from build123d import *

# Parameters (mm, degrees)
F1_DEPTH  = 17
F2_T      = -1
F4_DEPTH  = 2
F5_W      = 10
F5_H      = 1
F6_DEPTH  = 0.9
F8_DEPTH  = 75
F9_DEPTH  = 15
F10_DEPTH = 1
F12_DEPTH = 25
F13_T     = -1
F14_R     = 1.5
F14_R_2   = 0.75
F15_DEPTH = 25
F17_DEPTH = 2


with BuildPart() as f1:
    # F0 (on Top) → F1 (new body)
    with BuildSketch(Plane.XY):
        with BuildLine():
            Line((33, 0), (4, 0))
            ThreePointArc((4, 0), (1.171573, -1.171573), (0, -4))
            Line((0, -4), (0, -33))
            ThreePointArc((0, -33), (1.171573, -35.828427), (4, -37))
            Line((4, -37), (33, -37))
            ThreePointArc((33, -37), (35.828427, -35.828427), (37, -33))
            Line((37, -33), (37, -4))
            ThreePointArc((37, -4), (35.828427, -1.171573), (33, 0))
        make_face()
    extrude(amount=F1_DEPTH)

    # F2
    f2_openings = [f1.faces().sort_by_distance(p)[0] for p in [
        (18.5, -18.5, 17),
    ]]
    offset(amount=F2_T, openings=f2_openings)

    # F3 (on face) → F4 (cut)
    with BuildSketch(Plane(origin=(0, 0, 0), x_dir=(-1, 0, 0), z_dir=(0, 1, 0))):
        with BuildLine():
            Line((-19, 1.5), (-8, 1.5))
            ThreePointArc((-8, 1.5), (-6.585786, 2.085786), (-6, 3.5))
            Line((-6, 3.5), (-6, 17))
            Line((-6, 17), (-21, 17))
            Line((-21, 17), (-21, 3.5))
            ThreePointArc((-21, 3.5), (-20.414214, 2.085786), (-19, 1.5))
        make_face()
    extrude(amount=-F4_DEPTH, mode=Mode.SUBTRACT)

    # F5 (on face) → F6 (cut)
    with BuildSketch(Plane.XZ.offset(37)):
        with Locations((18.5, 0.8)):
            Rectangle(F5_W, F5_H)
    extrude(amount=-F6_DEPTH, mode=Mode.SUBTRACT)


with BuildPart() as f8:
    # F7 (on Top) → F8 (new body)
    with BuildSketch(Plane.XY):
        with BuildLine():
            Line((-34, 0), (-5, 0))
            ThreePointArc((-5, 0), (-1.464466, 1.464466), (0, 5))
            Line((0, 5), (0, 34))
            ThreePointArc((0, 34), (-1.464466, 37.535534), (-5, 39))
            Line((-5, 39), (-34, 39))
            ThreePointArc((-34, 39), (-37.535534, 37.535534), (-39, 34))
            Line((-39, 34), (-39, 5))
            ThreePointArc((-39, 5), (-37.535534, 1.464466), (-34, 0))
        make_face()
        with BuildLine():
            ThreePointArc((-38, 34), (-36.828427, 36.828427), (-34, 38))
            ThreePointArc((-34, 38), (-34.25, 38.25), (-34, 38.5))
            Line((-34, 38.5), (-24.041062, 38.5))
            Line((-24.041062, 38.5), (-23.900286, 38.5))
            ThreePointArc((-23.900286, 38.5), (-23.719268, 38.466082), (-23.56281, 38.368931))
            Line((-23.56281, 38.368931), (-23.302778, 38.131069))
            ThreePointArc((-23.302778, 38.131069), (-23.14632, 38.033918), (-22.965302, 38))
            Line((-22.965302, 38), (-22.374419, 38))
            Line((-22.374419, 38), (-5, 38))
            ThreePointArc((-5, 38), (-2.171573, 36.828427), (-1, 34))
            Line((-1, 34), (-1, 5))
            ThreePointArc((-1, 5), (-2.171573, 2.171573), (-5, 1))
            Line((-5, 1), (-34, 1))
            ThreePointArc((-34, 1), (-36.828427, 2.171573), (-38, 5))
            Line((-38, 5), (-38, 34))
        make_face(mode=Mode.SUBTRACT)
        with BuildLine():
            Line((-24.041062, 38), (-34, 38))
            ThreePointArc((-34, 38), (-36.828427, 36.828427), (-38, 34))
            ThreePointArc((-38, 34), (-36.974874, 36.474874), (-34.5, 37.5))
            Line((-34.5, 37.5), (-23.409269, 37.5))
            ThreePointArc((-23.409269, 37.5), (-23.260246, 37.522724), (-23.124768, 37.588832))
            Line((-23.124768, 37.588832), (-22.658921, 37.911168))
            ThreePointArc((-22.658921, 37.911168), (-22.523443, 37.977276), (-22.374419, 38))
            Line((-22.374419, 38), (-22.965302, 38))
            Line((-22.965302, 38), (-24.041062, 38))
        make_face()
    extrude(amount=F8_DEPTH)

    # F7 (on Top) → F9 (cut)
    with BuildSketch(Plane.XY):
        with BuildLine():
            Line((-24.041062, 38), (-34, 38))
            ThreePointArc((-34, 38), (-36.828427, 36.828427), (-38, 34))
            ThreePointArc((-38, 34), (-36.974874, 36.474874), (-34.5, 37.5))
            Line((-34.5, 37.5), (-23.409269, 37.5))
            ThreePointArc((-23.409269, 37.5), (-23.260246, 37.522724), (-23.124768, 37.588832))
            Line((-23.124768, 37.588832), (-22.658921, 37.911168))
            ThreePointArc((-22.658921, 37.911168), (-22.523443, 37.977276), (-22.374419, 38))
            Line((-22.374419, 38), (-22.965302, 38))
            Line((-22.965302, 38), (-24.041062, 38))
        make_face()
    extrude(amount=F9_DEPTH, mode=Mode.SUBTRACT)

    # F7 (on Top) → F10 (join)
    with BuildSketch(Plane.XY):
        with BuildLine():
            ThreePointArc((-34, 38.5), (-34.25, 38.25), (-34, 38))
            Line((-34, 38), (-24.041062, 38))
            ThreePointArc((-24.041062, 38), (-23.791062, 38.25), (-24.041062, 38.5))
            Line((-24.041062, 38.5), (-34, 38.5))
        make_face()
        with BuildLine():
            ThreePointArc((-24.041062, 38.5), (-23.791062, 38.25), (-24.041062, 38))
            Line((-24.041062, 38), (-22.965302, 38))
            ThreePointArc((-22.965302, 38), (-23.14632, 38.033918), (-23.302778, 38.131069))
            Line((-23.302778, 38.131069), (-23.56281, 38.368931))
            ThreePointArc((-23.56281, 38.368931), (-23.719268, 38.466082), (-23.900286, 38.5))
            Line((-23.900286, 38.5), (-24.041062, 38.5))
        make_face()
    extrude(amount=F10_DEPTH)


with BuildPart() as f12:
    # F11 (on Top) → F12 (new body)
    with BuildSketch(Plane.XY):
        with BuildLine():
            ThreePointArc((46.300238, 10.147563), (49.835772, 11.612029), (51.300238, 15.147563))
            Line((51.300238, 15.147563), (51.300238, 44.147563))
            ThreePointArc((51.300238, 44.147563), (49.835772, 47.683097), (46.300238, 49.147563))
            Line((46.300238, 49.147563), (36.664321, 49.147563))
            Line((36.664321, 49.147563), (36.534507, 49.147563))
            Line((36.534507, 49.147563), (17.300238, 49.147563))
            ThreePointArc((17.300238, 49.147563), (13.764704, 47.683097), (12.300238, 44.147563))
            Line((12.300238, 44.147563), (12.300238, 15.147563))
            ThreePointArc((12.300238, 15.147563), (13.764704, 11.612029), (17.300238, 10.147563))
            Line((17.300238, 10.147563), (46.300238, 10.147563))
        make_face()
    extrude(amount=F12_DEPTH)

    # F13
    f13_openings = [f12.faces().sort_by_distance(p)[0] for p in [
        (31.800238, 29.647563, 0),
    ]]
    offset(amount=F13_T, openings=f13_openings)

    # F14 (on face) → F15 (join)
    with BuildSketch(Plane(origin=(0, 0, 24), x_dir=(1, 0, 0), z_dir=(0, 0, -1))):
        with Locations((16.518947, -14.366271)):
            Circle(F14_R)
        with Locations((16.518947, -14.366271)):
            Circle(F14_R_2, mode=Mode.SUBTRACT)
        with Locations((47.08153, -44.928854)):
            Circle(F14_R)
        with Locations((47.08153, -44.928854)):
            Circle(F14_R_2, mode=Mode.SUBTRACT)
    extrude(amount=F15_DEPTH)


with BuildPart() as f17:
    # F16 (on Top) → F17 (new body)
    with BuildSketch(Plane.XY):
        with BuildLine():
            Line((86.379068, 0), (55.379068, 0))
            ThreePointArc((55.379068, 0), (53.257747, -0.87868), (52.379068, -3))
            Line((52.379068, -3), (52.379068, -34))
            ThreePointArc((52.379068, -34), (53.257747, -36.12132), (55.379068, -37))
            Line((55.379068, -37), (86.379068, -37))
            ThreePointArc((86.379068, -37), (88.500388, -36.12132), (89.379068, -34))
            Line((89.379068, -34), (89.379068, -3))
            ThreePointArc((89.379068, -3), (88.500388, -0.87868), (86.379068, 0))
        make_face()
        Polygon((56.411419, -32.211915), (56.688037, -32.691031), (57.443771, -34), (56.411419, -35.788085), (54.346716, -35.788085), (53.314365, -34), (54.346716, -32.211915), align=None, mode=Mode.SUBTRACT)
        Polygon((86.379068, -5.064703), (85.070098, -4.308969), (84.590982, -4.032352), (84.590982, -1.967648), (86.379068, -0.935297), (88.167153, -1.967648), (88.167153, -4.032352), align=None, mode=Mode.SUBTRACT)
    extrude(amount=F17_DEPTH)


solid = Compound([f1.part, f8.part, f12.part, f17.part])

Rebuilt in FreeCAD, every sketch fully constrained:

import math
import FreeCAD as App
import Part
import Sketcher
from FreeCAD import Vector
Q = App.Units.Quantity


def faces_at(feature, points):
    """Names of the faces that lie closest to the given points."""
    faces = feature.Shape.Faces
    near = lambda p: min(range(len(faces)), key=lambda i: faces[i].distToShape(Part.Vertex(*p))[0])
    return sorted({f"Face{near(p) + 1}" for p in points})

doc = App.newDocument("Part")
body = doc.addObject("PartDesign::Body", "Body")

sketch1 = doc.addObject("Sketcher::SketchObject", "Sketch")
body.addObject(sketch1)
sketch1.AttachmentSupport = (doc.XY_Plane, [""])
sketch1.MapMode = "FlatFace"
sketch1.addGeometry([
    Part.LineSegment(Vector(33, 0, 0), Vector(4, 0, 0)),
    Part.ArcOfCircle(Part.Circle(Vector(4, -4, 0), Vector(0, 0, 1), 4), math.radians(90.000006), math.radians(179.999994)),
    Part.LineSegment(Vector(0, -4, 0), Vector(0, -33, 0)),
    Part.ArcOfCircle(Part.Circle(Vector(4, -33, 0), Vector(0, 0, 1), 4), math.radians(-179.999994), math.radians(-90.000006)),
    Part.LineSegment(Vector(4, -37, 0), Vector(33, -37, 0)),
    Part.ArcOfCircle(Part.Circle(Vector(33, -33, 0), Vector(0, 0, 1), 4), math.radians(-89.999994), math.radians(-0.000006)),
    Part.LineSegment(Vector(37, -33, 0), Vector(37, -4, 0)),
    Part.ArcOfCircle(Part.Circle(Vector(33, -4, 0), Vector(0, 0, 1), 4), math.radians(0.000006), math.radians(89.999994)),
], False)
sketch1.addConstraint([
    Sketcher.Constraint("Tangent", 0, 2, 1, 1),
    Sketcher.Constraint("Tangent", 1, 2, 2, 1),
    Sketcher.Constraint("Tangent", 2, 2, 3, 1),
    Sketcher.Constraint("Tangent", 3, 2, 4, 1),
    Sketcher.Constraint("Tangent", 4, 2, 5, 1),
    Sketcher.Constraint("Tangent", 5, 2, 6, 1),
    Sketcher.Constraint("Tangent", 6, 2, 7, 1),
    Sketcher.Constraint("Tangent", 7, 2, 0, 1),
    Sketcher.Constraint("Horizontal", 0),
    Sketcher.Constraint("Vertical", 2),
    Sketcher.Constraint("Horizontal", 4),
    Sketcher.Constraint("Vertical", 6),
    Sketcher.Constraint("Equal", 1, 3),
    Sketcher.Constraint("Equal", 3, 5),
    Sketcher.Constraint("Equal", 5, 7),
    Sketcher.Constraint("PointOnObject", 0, 2, -1),
    Sketcher.Constraint("PointOnObject", 1, 2, -2),
    Sketcher.Constraint("Equal", 4, 2),
    Sketcher.Constraint("Radius", 1, 4.0),
    Sketcher.Constraint("DistanceX", 0, 2, 0, 1, 29.0),
])
pad1 = doc.addObject("PartDesign::Pad", "Pad")
body.addObject(pad1)
pad1.Profile = sketch1
pad1.Length = 17
doc.recompute()

thickness = doc.addObject("PartDesign::Thickness", "Thickness")
body.addObject(thickness)
thickness.Base = (pad1, faces_at(pad1, [(18.5, -18.5, 17)]))
thickness.Value = 1
thickness.Reversed = True
thickness.Join = "Arc"

sketch2 = doc.addObject("Sketcher::SketchObject", "Sketch001")
body.addObject(sketch2)
sketch2.AttachmentSupport = (doc.XZ_Plane, [""])
sketch2.MapMode = "FlatFace"
sketch2.addGeometry([
    Part.LineSegment(Vector(19, 1.5, 0), Vector(8, 1.5, 0)),
    Part.ArcOfCircle(Part.Circle(Vector(7.999999, 3.499999, 0), Vector(0, 0, 1), 1.999999), math.radians(179.999957), math.radians(270.000043)),
    Part.LineSegment(Vector(6, 3.5, 0), Vector(6, 17, 0)),
    Part.LineSegment(Vector(6, 17, 0), Vector(21, 17, 0)),
    Part.LineSegment(Vector(21, 17, 0), Vector(21, 3.5, 0)),
    Part.ArcOfCircle(Part.Circle(Vector(19.000001, 3.499999, 0), Vector(0, 0, 1), 1.999999), math.radians(-90.000043), math.radians(0.000043)),
], False)
sketch2.addConstraint([
    Sketcher.Constraint("Tangent", 0, 2, 1, 2),
    Sketcher.Constraint("Tangent", 1, 1, 2, 1),
    Sketcher.Constraint("Coincident", 2, 2, 3, 1),
    Sketcher.Constraint("Coincident", 3, 2, 4, 1),
    Sketcher.Constraint("Tangent", 4, 2, 5, 2),
    Sketcher.Constraint("Tangent", 5, 1, 0, 1),
    Sketcher.Constraint("Horizontal", 0),
    Sketcher.Constraint("Vertical", 2),
    Sketcher.Constraint("Horizontal", 3),
    Sketcher.Constraint("Vertical", 4),
    Sketcher.Constraint("Equal", 1, 5),
    Sketcher.Constraint("Radius", 1, 1.999999),
    Sketcher.Constraint("DistanceX", 0, 2, 0, 1, 11.0),
    Sketcher.Constraint("DistanceY", 2, 1, 2, 2, 13.5),
    Sketcher.Constraint("DistanceX", -1, 1, 1, 3, 7.999999),
    Sketcher.Constraint("DistanceY", -1, 1, 2, 2, 17.0),
])
pocket1 = doc.addObject("PartDesign::Pocket", "Pocket")
body.addObject(pocket1)
pocket1.Profile = sketch2
pocket1.Length = 2
pocket1.Reversed = True

sketch3 = doc.addObject("Sketcher::SketchObject", "Sketch002")
body.addObject(sketch3)
sketch3.AttachmentSupport = (doc.XZ_Plane, [""])
sketch3.MapMode = "FlatFace"
sketch3.AttachmentOffset = App.Placement(Vector(0, 0, 37), App.Rotation())
sketch3.addGeometry([
    Part.LineSegment(Vector(13.5, 1.3, 0), Vector(13.5, 0.3, 0)),
    Part.LineSegment(Vector(13.5, 0.3, 0), Vector(23.5, 0.3, 0)),
    Part.LineSegment(Vector(23.5, 0.3, 0), Vector(23.5, 1.3, 0)),
    Part.LineSegment(Vector(23.5, 1.3, 0), Vector(13.5, 1.3, 0)),
], False)
sketch3.addConstraint([
    Sketcher.Constraint("Coincident", 0, 2, 1, 1),
    Sketcher.Constraint("Coincident", 1, 2, 2, 1),
    Sketcher.Constraint("Coincident", 2, 2, 3, 1),
    Sketcher.Constraint("Coincident", 3, 2, 0, 1),
    Sketcher.Constraint("Vertical", 0),
    Sketcher.Constraint("Horizontal", 1),
    Sketcher.Constraint("Vertical", 2),
    Sketcher.Constraint("Horizontal", 3),
    Sketcher.Constraint("DistanceX", 1, 1, 1, 2, 10.0),
    Sketcher.Constraint("DistanceY", 0, 2, 0, 1, 1.0),
    Sketcher.Constraint("DistanceX", -1, 1, 0, 2, 13.5),
    Sketcher.Constraint("DistanceY", -1, 1, 0, 2, 0.3),
])
pocket2 = doc.addObject("PartDesign::Pocket", "Pocket001")
body.addObject(pocket2)
pocket2.Profile = sketch3
pocket2.Length = 0.9
body2 = doc.addObject("PartDesign::Body", "Body001")

sketch4 = doc.addObject("Sketcher::SketchObject", "Sketch003")
body2.addObject(sketch4)
sketch4.AttachmentSupport = (doc.getObject("XY_Plane001"), [""])
sketch4.MapMode = "FlatFace"
sketch4.addGeometry([
    Part.LineSegment(Vector(-34, 0, 0), Vector(-5, 0, 0)),
    Part.ArcOfCircle(Part.Circle(Vector(-5, 5, 0), Vector(0, 0, 1), 5), math.radians(-90.000004), math.radians(0.000004)),
    Part.LineSegment(Vector(0, 5, 0), Vector(0, 34, 0)),
    Part.ArcOfCircle(Part.Circle(Vector(-5, 34, 0), Vector(0, 0, 1), 5), math.radians(-0.000004), math.radians(90.000004)),
    Part.LineSegment(Vector(-5, 39, 0), Vector(-34, 39, 0)),
    Part.ArcOfCircle(Part.Circle(Vector(-34, 34, 0), Vector(0, 0, 1), 5), math.radians(89.999996), math.radians(180.000004)),
    Part.LineSegment(Vector(-39, 34, 0), Vector(-39, 5, 0)),
    Part.ArcOfCircle(Part.Circle(Vector(-34, 5, 0), Vector(0, 0, 1), 5), math.radians(179.999996), math.radians(270.000004)),
    Part.LineSegment(Vector(-38, 5, 0), Vector(-38, 34, 0)),
    Part.ArcOfCircle(Part.Circle(Vector(-34.500001, 34.000001, 0), Vector(0, 0, 1), 3.499999), math.radians(89.999985), math.radians(180.000015)),
    Part.LineSegment(Vector(-34.5, 37.5, 0), Vector(-23.409269, 37.5, 0)),
    Part.ArcOfCircle(Part.Circle(Vector(-23.409267, 37.999994, 0), Vector(0, 0, 1), 0.499994), math.radians(-90.000187), math.radians(-55.319126)),
    Part.LineSegment(Vector(-23.124768, 37.588832, 0), Vector(-22.658921, 37.911168, 0)),
    Part.ArcOfCircle(Part.Circle(Vector(-22.374422, 37.500006, 0), Vector(0, 0, 1), 0.499994), math.radians(89.999698), math.radians(124.680874)),
    Part.LineSegment(Vector(-22.374419, 38, 0), Vector(-5, 38, 0)),
    Part.ArcOfCircle(Part.Circle(Vector(-5, 34, 0), Vector(0, 0, 1), 4), math.radians(0.000006), math.radians(89.999994)),
    Part.LineSegment(Vector(-1, 34, 0), Vector(-1, 5, 0)),
    Part.ArcOfCircle(Part.Circle(Vector(-5, 5, 0), Vector(0, 0, 1), 4), math.radians(-89.999994), math.radians(-0.000006)),
    Part.LineSegment(Vector(-5, 1, 0), Vector(-34, 1, 0)),
    Part.ArcOfCircle(Part.Circle(Vector(-34, 5, 0), Vector(0, 0, 1), 4), math.radians(-179.999994), math.radians(-90.000006)),
    Part.ArcOfCircle(Part.Circle(Vector(-22.965302, 38.500002, 0), Vector(0, 0, 1), 0.500002), math.radians(-132.450316), math.radians(-90.000054)),
    Part.LineSegment(Vector(-22.965302, 38, 0), Vector(-34, 38, 0)),
    Part.ArcOfCircle(Part.Circle(Vector(-34, 38.25, 0), Vector(0, 0, 1), 0.25), math.radians(90), math.radians(270)),
    Part.LineSegment(Vector(-34, 38.5, 0), Vector(-23.900286, 38.5, 0)),
    Part.ArcOfCircle(Part.Circle(Vector(-23.900286, 37.999998, 0), Vector(0, 0, 1), 0.500002), math.radians(47.549684), math.radians(89.999946)),
    Part.LineSegment(Vector(-23.56281, 38.368931, 0), Vector(-23.302778, 38.131069, 0)),
], False)
sketch4.addConstraint([
    Sketcher.Constraint("Tangent", 0, 2, 1, 1),
    Sketcher.Constraint("Tangent", 1, 2, 2, 1),
    Sketcher.Constraint("Tangent", 2, 2, 3, 1),
    Sketcher.Constraint("Tangent", 3, 2, 4, 1),
    Sketcher.Constraint("Tangent", 4, 2, 5, 1),
    Sketcher.Constraint("Tangent", 5, 2, 6, 1),
    Sketcher.Constraint("Tangent", 6, 2, 7, 1),
    Sketcher.Constraint("Tangent", 7, 2, 0, 1),
    Sketcher.Constraint("Tangent", 8, 2, 9, 2),
    Sketcher.Constraint("Tangent", 9, 1, 10, 1),
    Sketcher.Constraint("Coincident", 10, 2, 11, 1),
    Sketcher.Constraint("Coincident", 11, 2, 12, 1),
    Sketcher.Constraint("Coincident", 12, 2, 13, 2),
    Sketcher.Constraint("Coincident", 13, 1, 14, 1),
    Sketcher.Constraint("Tangent", 14, 2, 15, 2),
    Sketcher.Constraint("Tangent", 15, 1, 16, 1),
    Sketcher.Constraint("Tangent", 16, 2, 17, 2),
    Sketcher.Constraint("Tangent", 17, 1, 18, 1),
    Sketcher.Constraint("Tangent", 18, 2, 19, 2),
    Sketcher.Constraint("Tangent", 19, 1, 8, 1),
    Sketcher.Constraint("Tangent", 20, 2, 21, 1),
    Sketcher.Constraint("Tangent", 21, 2, 22, 2),
    Sketcher.Constraint("Tangent", 22, 1, 23, 1),
    Sketcher.Constraint("Tangent", 23, 2, 24, 2),
    Sketcher.Constraint("Coincident", 24, 1, 25, 1),
    Sketcher.Constraint("Coincident", 25, 2, 20, 1),
    Sketcher.Constraint("Horizontal", 0),
    Sketcher.Constraint("Vertical", 2),
    Sketcher.Constraint("Horizontal", 4),
    Sketcher.Constraint("Vertical", 6),
    Sketcher.Constraint("Vertical", 8),
    Sketcher.Constraint("Horizontal", 10),
    Sketcher.Constraint("Horizontal", 14),
    Sketcher.Constraint("Vertical", 16),
    Sketcher.Constraint("Horizontal", 18),
    Sketcher.Constraint("Horizontal", 21),
    Sketcher.Constraint("Horizontal", 23),
    Sketcher.Constraint("Coincident", 15, 3, 3, 3),
    Sketcher.Constraint("Coincident", 17, 3, 1, 3),
    Sketcher.Constraint("Coincident", 19, 3, 7, 3),
    Sketcher.Constraint("Equal", 1, 3),
    Sketcher.Constraint("Equal", 3, 5),
    Sketcher.Constraint("Equal", 5, 7),
    Sketcher.Constraint("Equal", 11, 13),
    Sketcher.Constraint("Equal", 20, 24),
    Sketcher.Constraint("PointOnObject", 0, 2, -1),
    Sketcher.Constraint("PointOnObject", 1, 2, -2),
    Sketcher.Constraint("Horizontal", 5, 3, 9, 3),
    Sketcher.Constraint("Horizontal", 24, 3, 13, 1),
    Sketcher.Constraint("Horizontal", 14, 2, 20, 2),
    Sketcher.Constraint("Vertical", 19, 3, 22, 3),
    Sketcher.Constraint("Vertical", 11, 3, 10, 2),
    Sketcher.Constraint("Equal", 18, 2),
    Sketcher.Constraint("Radius", 1, 5.0),
    Sketcher.Constraint("Radius", 15, 4.0),
    Sketcher.Constraint("Radius", 9, 3.499999),
    Sketcher.Constraint("Radius", 20, 0.500002),
    Sketcher.Constraint("DistanceX", 0, 1, 0, 2, 29.0),
    Sketcher.Constraint("Radius", 11, 0.499994),
    Sketcher.Constraint("DistanceX", 10, 1, 10, 2, 11.090731),
    Sketcher.Constraint("DistanceX", 14, 1, 14, 2, 17.374419),
    Sketcher.Constraint("DistanceX", 20, 3, -1, 1, 22.965302),
    Sketcher.Constraint("DistanceX", 10, 2, 11, 2, 0.284501),
    Sketcher.Constraint("DistanceX", 12, 2, 13, 3, 0.284499),
    Sketcher.Constraint("DistanceX", 12, 2, 13, 1, 0.284502),
    Sketcher.Constraint("DistanceX", 23, 1, 23, 2, 10.099714),
    Sketcher.Constraint("DistanceX", 24, 1, -1, 1, 23.56281),
    Sketcher.Constraint("DistanceX", 25, 2, -1, 1, 23.302778),
])
pad2 = doc.addObject("PartDesign::Pad", "Pad001")
body2.addObject(pad2)
pad2.Profile = sketch4
pad2.Length = 75

sketch5 = doc.addObject("Sketcher::SketchObject", "Sketch004")
body2.addObject(sketch5)
sketch5.AttachmentSupport = (doc.getObject("XY_Plane001"), [""])
sketch5.MapMode = "FlatFace"
sketch5.addGeometry([
    Part.ArcOfCircle(Part.Circle(Vector(-34, 34, 0), Vector(0, 0, 1), 4), math.radians(90.000006), math.radians(179.999994)),
    Part.ArcOfCircle(Part.Circle(Vector(-34.500001, 34.000001, 0), Vector(0, 0, 1), 3.499999), math.radians(89.999985), math.radians(180.000015)),
    Part.LineSegment(Vector(-34.5, 37.5, 0), Vector(-23.409269, 37.5, 0)),
    Part.ArcOfCircle(Part.Circle(Vector(-23.409267, 37.999994, 0), Vector(0, 0, 1), 0.499994), math.radians(-90.000187), math.radians(-55.319126)),
    Part.LineSegment(Vector(-23.124768, 37.588832, 0), Vector(-22.658921, 37.911168, 0)),
    Part.ArcOfCircle(Part.Circle(Vector(-22.374422, 37.500006, 0), Vector(0, 0, 1), 0.499994), math.radians(89.999698), math.radians(124.680874)),
    Part.LineSegment(Vector(-22.374419, 38, 0), Vector(-34, 38, 0)),
], False)
sketch5.addConstraint([
    Sketcher.Constraint("Tangent", 0, 2, 1, 2),
    Sketcher.Constraint("Tangent", 1, 1, 2, 1),
    Sketcher.Constraint("Coincident", 2, 2, 3, 1),
    Sketcher.Constraint("Coincident", 3, 2, 4, 1),
    Sketcher.Constraint("Coincident", 4, 2, 5, 2),
    Sketcher.Constraint("Coincident", 5, 1, 6, 1),
    Sketcher.Constraint("Tangent", 6, 2, 0, 1),
    Sketcher.Constraint("Horizontal", 2),
    Sketcher.Constraint("Horizontal", 6),
    Sketcher.Constraint("Equal", 3, 5),
    Sketcher.Constraint("Horizontal", 0, 3, 1, 3),
    Sketcher.Constraint("Vertical", 3, 3, 2, 2),
    Sketcher.Constraint("Radius", 0, 4.0),
    Sketcher.Constraint("Radius", 1, 3.499999),
    Sketcher.Constraint("DistanceX", 0, 3, -1, 1, 34.0),
    Sketcher.Constraint("DistanceY", -1, 1, 0, 3, 34.0),
    Sketcher.Constraint("Radius", 3, 0.499994),
    Sketcher.Constraint("DistanceX", 2, 1, 2, 2, 11.090731),
    Sketcher.Constraint("DistanceX", 6, 2, 6, 1, 11.625581),
    Sketcher.Constraint("DistanceX", 2, 2, 3, 2, 0.284501),
    Sketcher.Constraint("DistanceX", 4, 2, 5, 3, 0.284499),
    Sketcher.Constraint("DistanceX", 4, 2, 5, 1, 0.284502),
])
pocket3 = doc.addObject("PartDesign::Pocket", "Pocket002")
body2.addObject(pocket3)
pocket3.Profile = sketch5
pocket3.Length = 15
pocket3.Reversed = True

sketch6 = doc.addObject("Sketcher::SketchObject", "Sketch005")
body2.addObject(sketch6)
sketch6.AttachmentSupport = (doc.getObject("XY_Plane001"), [""])
sketch6.MapMode = "FlatFace"
sketch6.addGeometry([
    Part.ArcOfCircle(Part.Circle(Vector(-34, 38.25, 0), Vector(0, 0, 1), 0.25), math.radians(90), math.radians(270)),
    Part.LineSegment(Vector(-34, 38, 0), Vector(-22.965302, 38, 0)),
    Part.ArcOfCircle(Part.Circle(Vector(-22.965302, 38.500002, 0), Vector(0, 0, 1), 0.500002), math.radians(-132.450316), math.radians(-90.000054)),
    Part.LineSegment(Vector(-23.302778, 38.131069, 0), Vector(-23.56281, 38.368931, 0)),
    Part.ArcOfCircle(Part.Circle(Vector(-23.900286, 37.999998, 0), Vector(0, 0, 1), 0.500002), math.radians(47.549684), math.radians(89.999946)),
    Part.LineSegment(Vector(-23.900286, 38.5, 0), Vector(-34, 38.5, 0)),
], False)
sketch6.addConstraint([
    Sketcher.Constraint("Tangent", 0, 2, 1, 1),
    Sketcher.Constraint("Tangent", 1, 2, 2, 2),
    Sketcher.Constraint("Coincident", 2, 1, 3, 1),
    Sketcher.Constraint("Coincident", 3, 2, 4, 1),
    Sketcher.Constraint("Tangent", 4, 2, 5, 1),
    Sketcher.Constraint("Tangent", 5, 2, 0, 1),
    Sketcher.Constraint("Horizontal", 1),
    Sketcher.Constraint("Horizontal", 5),
    Sketcher.Constraint("Equal", 2, 4),
    Sketcher.Constraint("Horizontal", 4, 3, 0, 2),
    Sketcher.Constraint("Radius", 2, 0.500002),
    Sketcher.Constraint("DistanceX", 0, 3, -1, 1, 34.0),
    Sketcher.Constraint("DistanceY", -1, 1, 4, 3, 37.999998),
    Sketcher.Constraint("DistanceX", 2, 3, -1, 1, 22.965302),
    Sketcher.Constraint("DistanceX", 5, 2, 5, 1, 10.099714),
    Sketcher.Constraint("DistanceY", -1, 1, 2, 1, 38.131069),
    Sketcher.Constraint("DistanceX", 3, 2, -1, 1, 23.56281),
])
pad3 = doc.addObject("PartDesign::Pad", "Pad002")
body2.addObject(pad3)
pad3.Profile = sketch6
pad3.Length = 1
body3 = doc.addObject("PartDesign::Body", "Body002")

sketch7 = doc.addObject("Sketcher::SketchObject", "Sketch006")
body3.addObject(sketch7)
sketch7.AttachmentSupport = (doc.getObject("XY_Plane002"), [""])
sketch7.MapMode = "FlatFace"
sketch7.addGeometry([
    Part.ArcOfCircle(Part.Circle(Vector(46.300238, 15.147563, 0), Vector(0, 0, 1), 5), math.radians(-90.000004), math.radians(0.000004)),
    Part.LineSegment(Vector(51.300238, 15.147563, 0), Vector(51.300238, 44.147563, 0)),
    Part.ArcOfCircle(Part.Circle(Vector(46.300238, 44.147563, 0), Vector(0, 0, 1), 5), math.radians(-0.000004), math.radians(90.000004)),
    Part.LineSegment(Vector(46.300238, 49.147563, 0), Vector(17.300238, 49.147563, 0)),
    Part.ArcOfCircle(Part.Circle(Vector(17.300238, 44.147563, 0), Vector(0, 0, 1), 5), math.radians(89.999996), math.radians(180.000004)),
    Part.LineSegment(Vector(12.300238, 44.147563, 0), Vector(12.300238, 15.147563, 0)),
    Part.ArcOfCircle(Part.Circle(Vector(17.300238, 15.147563, 0), Vector(0, 0, 1), 5), math.radians(179.999996), math.radians(270.000004)),
    Part.LineSegment(Vector(17.300238, 10.147563, 0), Vector(46.300238, 10.147563, 0)),
], False)
sketch7.addConstraint([
    Sketcher.Constraint("Tangent", 0, 2, 1, 1),
    Sketcher.Constraint("Tangent", 1, 2, 2, 1),
    Sketcher.Constraint("Tangent", 2, 2, 3, 1),
    Sketcher.Constraint("Tangent", 3, 2, 4, 1),
    Sketcher.Constraint("Tangent", 4, 2, 5, 1),
    Sketcher.Constraint("Tangent", 5, 2, 6, 1),
    Sketcher.Constraint("Tangent", 6, 2, 7, 1),
    Sketcher.Constraint("Tangent", 7, 2, 0, 1),
    Sketcher.Constraint("Vertical", 1),
    Sketcher.Constraint("Horizontal", 3),
    Sketcher.Constraint("Vertical", 5),
    Sketcher.Constraint("Horizontal", 7),
    Sketcher.Constraint("Equal", 0, 2),
    Sketcher.Constraint("Equal", 2, 4),
    Sketcher.Constraint("Equal", 4, 6),
    Sketcher.Constraint("Equal", 7, 1),
    Sketcher.Constraint("Radius", 0, 5.0),
    Sketcher.Constraint("DistanceX", 3, 2, 3, 1, 29.0),
    Sketcher.Constraint("DistanceX", -1, 1, 0, 3, 46.300238),
    Sketcher.Constraint("DistanceY", -1, 1, 0, 3, 15.147563),
])
pad4 = doc.addObject("PartDesign::Pad", "Pad003")
body3.addObject(pad4)
pad4.Profile = sketch7
pad4.Length = 25
doc.recompute()

thickness2 = doc.addObject("PartDesign::Thickness", "Thickness001")
body3.addObject(thickness2)
thickness2.Base = (pad4, faces_at(pad4, [(31.8, 29.648, 0)]))
thickness2.Value = 1
thickness2.Reversed = True
thickness2.Join = "Arc"

sketch8 = doc.addObject("Sketcher::SketchObject", "Sketch007")
body3.addObject(sketch8)
sketch8.AttachmentSupport = (doc.getObject("XY_Plane002"), [""])
sketch8.MapMode = "FlatFace"
sketch8.AttachmentOffset = App.Placement(Vector(0, 0, 24), App.Rotation())
sketch8.addGeometry([
    Part.Circle(Vector(16.518947, 14.366271, 0), Vector(0, 0, 1), 1.5),
    Part.Circle(Vector(16.518947, 14.366271, 0), Vector(0, 0, 1), 0.75),
    Part.Circle(Vector(47.08153, 44.928854, 0), Vector(0, 0, 1), 1.5),
    Part.Circle(Vector(47.08153, 44.928854, 0), Vector(0, 0, 1), 0.75),
], False)
sketch8.addConstraint([
    Sketcher.Constraint("Coincident", 1, 3, 0, 3),
    Sketcher.Constraint("Coincident", 3, 3, 2, 3),
    Sketcher.Constraint("Equal", 0, 2),
    Sketcher.Constraint("Equal", 1, 3),
    Sketcher.Constraint("Diameter", 0, 3.0),
    Sketcher.Constraint("Diameter", 1, 1.5),
    Sketcher.Constraint("DistanceY", -1, 1, 0, 3, 14.366271),
    Sketcher.Constraint("DistanceX", -1, 1, 2, 3, 47.08153),
    Sketcher.Constraint("DistanceX", -1, 1, 0, 3, 16.518947),
    Sketcher.Constraint("DistanceY", -1, 1, 2, 3, 44.928854),
])
pad5 = doc.addObject("PartDesign::Pad", "Pad004")
body3.addObject(pad5)
pad5.Profile = sketch8
pad5.Length = 25
pad5.Reversed = True
body4 = doc.addObject("PartDesign::Body", "Body003")

sketch9 = doc.addObject("Sketcher::SketchObject", "Sketch008")
body4.addObject(sketch9)
sketch9.AttachmentSupport = (doc.getObject("XY_Plane003"), [""])
sketch9.MapMode = "FlatFace"
sketch9.addGeometry([
    Part.LineSegment(Vector(86.379068, 0, 0), Vector(55.379068, 0, 0)),
    Part.ArcOfCircle(Part.Circle(Vector(55.379067, -2.999999, 0), Vector(0, 0, 1), 2.999999), math.radians(89.99999), math.radians(180.00001)),
    Part.LineSegment(Vector(52.379068, -3, 0), Vector(52.379068, -34, 0)),
    Part.ArcOfCircle(Part.Circle(Vector(55.379067, -34.000001, 0), Vector(0, 0, 1), 2.999999), math.radians(179.99999), math.radians(270.00001)),
    Part.LineSegment(Vector(55.379068, -37, 0), Vector(86.379068, -37, 0)),
    Part.ArcOfCircle(Part.Circle(Vector(86.379067, -33.999999, 0), Vector(0, 0, 1), 3.000001), math.radians(-89.999978), math.radians(-0.000022)),
    Part.LineSegment(Vector(89.379068, -34, 0), Vector(89.379068, -3, 0)),
    Part.ArcOfCircle(Part.Circle(Vector(86.379067, -3.000001, 0), Vector(0, 0, 1), 3.000001), math.radians(0.000022), math.radians(89.999978)),
    Part.LineSegment(Vector(54.346716, -32.211915, 0), Vector(56.411419, -32.211915, 0)),
    Part.LineSegment(Vector(56.411419, -32.211915, 0), Vector(56.688037, -32.691031, 0)),
    Part.LineSegment(Vector(56.688037, -32.691031, 0), Vector(57.443771, -34, 0)),
    Part.LineSegment(Vector(57.443771, -34, 0), Vector(56.411419, -35.788085, 0)),
    Part.LineSegment(Vector(56.411419, -35.788085, 0), Vector(54.346716, -35.788085, 0)),
    Part.LineSegment(Vector(54.346716, -35.788085, 0), Vector(53.314365, -34, 0)),
    Part.LineSegment(Vector(53.314365, -34, 0), Vector(54.346716, -32.211915, 0)),
    Part.LineSegment(Vector(88.167153, -4.032352, 0), Vector(86.379068, -5.064703, 0)),
    Part.LineSegment(Vector(86.379068, -5.064703, 0), Vector(85.070098, -4.308969, 0)),
    Part.LineSegment(Vector(85.070098, -4.308969, 0), Vector(84.590982, -4.032352, 0)),
    Part.LineSegment(Vector(84.590982, -4.032352, 0), Vector(84.590982, -1.967648, 0)),
    Part.LineSegment(Vector(84.590982, -1.967648, 0), Vector(86.379068, -0.935297, 0)),
    Part.LineSegment(Vector(86.379068, -0.935297, 0), Vector(88.167153, -1.967648, 0)),
    Part.LineSegment(Vector(88.167153, -1.967648, 0), Vector(88.167153, -4.032352, 0)),
], False)
sketch9.addConstraint([
    Sketcher.Constraint("Tangent", 0, 2, 1, 1),
    Sketcher.Constraint("Tangent", 1, 2, 2, 1),
    Sketcher.Constraint("Tangent", 2, 2, 3, 1),
    Sketcher.Constraint("Tangent", 3, 2, 4, 1),
    Sketcher.Constraint("Tangent", 4, 2, 5, 1),
    Sketcher.Constraint("Tangent", 5, 2, 6, 1),
    Sketcher.Constraint("Tangent", 6, 2, 7, 1),
    Sketcher.Constraint("Tangent", 7, 2, 0, 1),
    Sketcher.Constraint("Coincident", 8, 2, 9, 1),
    Sketcher.Constraint("Coincident", 9, 2, 10, 1),
    Sketcher.Constraint("Coincident", 10, 2, 11, 1),
    Sketcher.Constraint("Coincident", 11, 2, 12, 1),
    Sketcher.Constraint("Coincident", 12, 2, 13, 1),
    Sketcher.Constraint("Coincident", 13, 2, 14, 1),
    Sketcher.Constraint("Coincident", 14, 2, 8, 1),
    Sketcher.Constraint("Coincident", 15, 2, 16, 1),
    Sketcher.Constraint("Coincident", 16, 2, 17, 1),
    Sketcher.Constraint("Coincident", 17, 2, 18, 1),
    Sketcher.Constraint("Coincident", 18, 2, 19, 1),
    Sketcher.Constraint("Coincident", 19, 2, 20, 1),
    Sketcher.Constraint("Coincident", 20, 2, 21, 1),
    Sketcher.Constraint("Coincident", 21, 2, 15, 1),
    Sketcher.Constraint("Horizontal", 0),
    Sketcher.Constraint("Vertical", 2),
    Sketcher.Constraint("Horizontal", 4),
    Sketcher.Constraint("Vertical", 6),
    Sketcher.Constraint("Horizontal", 8),
    Sketcher.Constraint("Horizontal", 12),
    Sketcher.Constraint("Vertical", 18),
    Sketcher.Constraint("Vertical", 21),
    Sketcher.Constraint("Equal", 1, 3),
    Sketcher.Constraint("Equal", 3, 5),
    Sketcher.Constraint("Equal", 5, 7),
    Sketcher.Constraint("PointOnObject", 0, 2, -1),
    Sketcher.Constraint("Parallel", 9, 10),
    Sketcher.Constraint("Parallel", 10, 13),
    Sketcher.Constraint("Parallel", 11, 14),
    Sketcher.Constraint("Perpendicular", 13, 15),
    Sketcher.Constraint("Perpendicular", 14, 16),
    Sketcher.Constraint("Parallel", 16, 17),
    Sketcher.Constraint("Parallel", 15, 19),
    Sketcher.Constraint("Parallel", 17, 20),
    Sketcher.Constraint("Horizontal", 5, 2, 10, 2),
    Sketcher.Constraint("Horizontal", 10, 2, 13, 2),
    Sketcher.Constraint("Horizontal", 18, 2, 20, 2),
    Sketcher.Constraint("Horizontal", 17, 2, 21, 2),
    Sketcher.Constraint("Vertical", 8, 2, 11, 2),
    Sketcher.Constraint("Vertical", 12, 2, 14, 2),
    Sketcher.Constraint("Vertical", 7, 2, 15, 2),
    Sketcher.Constraint("Equal", 4, 2),
    Sketcher.Constraint("Equal", 12, 18),
    Sketcher.Constraint("Equal", 14, 15),
    Sketcher.Constraint("Equal", 10, 16),
    Sketcher.Constraint("Radius", 1, 2.999999),
    Sketcher.Constraint("DistanceX", 0, 2, 0, 1, 31.0),
    Sketcher.Constraint("Angle", 10, Q("-59.999987 deg")),
    Sketcher.Constraint("DistanceX", -1, 1, 16, 2, 85.070098),
    Sketcher.Constraint("DistanceY", 15, 2, 7, 3, 2.064702),
    Sketcher.Constraint("Distance", 16, 1.511468),
    Sketcher.Constraint("DistanceX", 8, 1, 8, 2, 2.064703),
    Sketcher.Constraint("DistanceX", -1, 1, 8, 2, 56.411419),
    Sketcher.Constraint("DistanceX", -1, 1, 10, 2, 57.443771),
])
pad6 = doc.addObject("PartDesign::Pad", "Pad005")
body4.addObject(pad6)
pad6.Profile = sketch9
pad6.Length = 2

doc.recompute()
